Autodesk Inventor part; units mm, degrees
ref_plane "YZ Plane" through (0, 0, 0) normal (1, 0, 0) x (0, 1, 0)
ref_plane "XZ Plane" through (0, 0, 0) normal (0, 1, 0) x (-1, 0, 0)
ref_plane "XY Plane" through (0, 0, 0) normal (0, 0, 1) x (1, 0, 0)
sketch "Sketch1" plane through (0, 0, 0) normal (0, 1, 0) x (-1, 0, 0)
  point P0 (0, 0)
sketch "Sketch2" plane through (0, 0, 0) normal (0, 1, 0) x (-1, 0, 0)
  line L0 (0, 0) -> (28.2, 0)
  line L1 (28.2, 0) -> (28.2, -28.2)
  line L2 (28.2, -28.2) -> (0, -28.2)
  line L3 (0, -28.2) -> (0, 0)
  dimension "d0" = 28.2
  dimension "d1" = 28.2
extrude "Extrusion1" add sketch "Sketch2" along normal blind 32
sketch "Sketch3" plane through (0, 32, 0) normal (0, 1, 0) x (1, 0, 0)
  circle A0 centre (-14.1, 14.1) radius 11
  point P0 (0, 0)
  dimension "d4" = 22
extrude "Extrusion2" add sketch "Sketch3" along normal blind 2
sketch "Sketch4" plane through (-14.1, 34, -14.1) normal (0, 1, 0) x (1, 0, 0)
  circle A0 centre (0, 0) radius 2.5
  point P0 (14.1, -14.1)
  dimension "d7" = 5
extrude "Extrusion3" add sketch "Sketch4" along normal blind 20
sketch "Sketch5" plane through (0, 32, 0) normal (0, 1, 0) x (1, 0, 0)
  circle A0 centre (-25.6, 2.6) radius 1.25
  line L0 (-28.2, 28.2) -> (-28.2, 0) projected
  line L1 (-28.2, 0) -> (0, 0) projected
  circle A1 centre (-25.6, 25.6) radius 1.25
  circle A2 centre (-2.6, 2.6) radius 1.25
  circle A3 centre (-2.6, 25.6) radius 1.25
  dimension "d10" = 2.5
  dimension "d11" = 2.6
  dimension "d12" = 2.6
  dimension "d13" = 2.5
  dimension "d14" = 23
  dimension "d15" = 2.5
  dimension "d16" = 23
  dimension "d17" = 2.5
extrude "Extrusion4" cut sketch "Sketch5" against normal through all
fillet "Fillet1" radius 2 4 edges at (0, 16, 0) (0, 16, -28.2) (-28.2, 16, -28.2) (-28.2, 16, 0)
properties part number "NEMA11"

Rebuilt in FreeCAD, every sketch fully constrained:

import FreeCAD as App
import Part
import Sketcher
from FreeCAD import Vector


def edges_at(feature, points):
    """Names of the edges that pass closest to the given points."""
    edges = feature.Shape.Edges
    near = lambda p: min(range(len(edges)), key=lambda i: edges[i].distToShape(Part.Vertex(*p))[0])
    return sorted({f"Edge{near(p) + 1}" for p in points})


def add_polygon(sketch, points):
    """Adds a closed chain of lines whose ends are joined by coincident constraints."""
    first, n = sketch.GeometryCount, len(points)
    for a, b in zip(points, points[1:] + points[:1]):
        sketch.addGeometry(Part.LineSegment(App.Vector(*a, 0), App.Vector(*b, 0)), False)
    for i in range(n):
        sketch.addConstraint(Sketcher.Constraint("Coincident", first + i, 2, first + (i + 1) % n, 1))

doc = App.newDocument("Part")
body = doc.addObject("PartDesign::Body", "Body")

sketch1 = body.newObject("Sketcher::SketchObject", "Sketch")
sketch1.AttachmentSupport = (doc.getObject("XZ_Plane"), [""])
sketch1.MapMode = "FlatFace"
add_polygon(sketch1, [(-28, 0), (0, 0), (0, -28), (-28, -28)])
sketch1.addConstraint([
    Sketcher.Constraint("Horizontal", 0),
    Sketcher.Constraint("Vertical", 1),
    Sketcher.Constraint("Horizontal", 2),
    Sketcher.Constraint("Vertical", 3),
    Sketcher.Constraint("Coincident", 0, 2, -1, 1),
    Sketcher.Constraint("Equal", 2, 1),
    Sketcher.Constraint("DistanceX", 0, 1, 0, 2, 28.2),
])
pad1 = body.newObject("PartDesign::Pad", "Pad")
pad1.Profile = sketch1
pad1.Length = 32
pad1.Reversed = True

sketch2 = body.newObject("Sketcher::SketchObject", "Sketch001")
sketch2.AttachmentSupport = (doc.getObject("XZ_Plane"), [""])
sketch2.MapMode = "FlatFace"
sketch2.AttachmentOffset = App.Placement(Vector(0, 0, -32), App.Rotation())
sketch2.addGeometry(Part.Circle(Vector(-14, -14, 0), Vector(0, 0, 1), 11), False)
sketch2.addConstraint([
    Sketcher.Constraint("Diameter", 0, 22.0),
    Sketcher.Constraint("DistanceX", 0, 3, -1, 1, 14.1),
    Sketcher.Constraint("DistanceY", 0, 3, -1, 1, 14.1),
])
pad2 = body.newObject("PartDesign::Pad", "Pad001")
pad2.Profile = sketch2
pad2.Length = 2
pad2.Reversed = True

sketch3 = body.newObject("Sketcher::SketchObject", "Sketch002")
sketch3.AttachmentSupport = (doc.getObject("XZ_Plane"), [""])
sketch3.MapMode = "FlatFace"
sketch3.AttachmentOffset = App.Placement(Vector(0, 0, -34), App.Rotation())
sketch3.addGeometry(Part.Circle(Vector(-14.1, -14.1, 0), Vector(0, 0, 1), 2.5), False)
sketch3.addConstraint([
    Sketcher.Constraint("Diameter", 0, 5.0),
    Sketcher.Constraint("DistanceX", 0, 3, -1, 1, 14.1),
    Sketcher.Constraint("DistanceY", 0, 3, -1, 1, 14.1),
])
pad3 = body.newObject("PartDesign::Pad", "Pad002")
pad3.Profile = sketch3
pad3.Length = 20
pad3.Reversed = True

sketch4 = body.newObject("Sketcher::SketchObject", "Sketch003")
sketch4.AttachmentSupport = (doc.getObject("XZ_Plane"), [""])
sketch4.MapMode = "FlatFace"
sketch4.AttachmentOffset = App.Placement(Vector(0, 0, -32), App.Rotation())
sketch4.addGeometry([
    Part.Circle(Vector(-25.6, -2.6, 0), Vector(0, 0, 1), 1.2),
    Part.Circle(Vector(-25.6, -25.6, 0), Vector(0, 0, 1), 1.2),
    Part.Circle(Vector(-2.6, -2.6, 0), Vector(0, 0, 1), 1.2),
    Part.Circle(Vector(-2.6, -25.6, 0), Vector(0, 0, 1), 1.2),
], False)
sketch4.addConstraint([
    Sketcher.Constraint("Equal", 0, 1),
    Sketcher.Constraint("Equal", 1, 2),
    Sketcher.Constraint("Equal", 2, 3),
    Sketcher.Constraint("Horizontal", 0, 3, 2, 3),
    Sketcher.Constraint("Horizontal", 1, 3, 3, 3),
    Sketcher.Constraint("Vertical", 0, 3, 1, 3),
    Sketcher.Constraint("Vertical", 2, 3, 3, 3),
    Sketcher.Constraint("Diameter", 0, 2.5),
    Sketcher.Constraint("DistanceY", 1, 3, 0, 3, 23.0),
    Sketcher.Constraint("DistanceX", 0, 3, 2, 3, 23.0),
    Sketcher.Constraint("DistanceY", 0, 3, -1, 1, 2.6),
    Sketcher.Constraint("DistanceX", 2, 3, -1, 1, 2.6),
])
pocket1 = body.newObject("PartDesign::Pocket", "Pocket")
pocket1.Profile = sketch4
pocket1.Type = "ThroughAll"
pocket1.Reversed = True
doc.recompute()

fillet = body.newObject("PartDesign::Fillet", "Fillet")
fillet.Base = (pocket1, edges_at(pocket1, [
    (0, 16, 0),
    (0, 16, -28.2),
    (-28.2, 16, -28.2),
    (-28.2, 16, 0),
]))
fillet.Radius = 2

doc.recompute()
